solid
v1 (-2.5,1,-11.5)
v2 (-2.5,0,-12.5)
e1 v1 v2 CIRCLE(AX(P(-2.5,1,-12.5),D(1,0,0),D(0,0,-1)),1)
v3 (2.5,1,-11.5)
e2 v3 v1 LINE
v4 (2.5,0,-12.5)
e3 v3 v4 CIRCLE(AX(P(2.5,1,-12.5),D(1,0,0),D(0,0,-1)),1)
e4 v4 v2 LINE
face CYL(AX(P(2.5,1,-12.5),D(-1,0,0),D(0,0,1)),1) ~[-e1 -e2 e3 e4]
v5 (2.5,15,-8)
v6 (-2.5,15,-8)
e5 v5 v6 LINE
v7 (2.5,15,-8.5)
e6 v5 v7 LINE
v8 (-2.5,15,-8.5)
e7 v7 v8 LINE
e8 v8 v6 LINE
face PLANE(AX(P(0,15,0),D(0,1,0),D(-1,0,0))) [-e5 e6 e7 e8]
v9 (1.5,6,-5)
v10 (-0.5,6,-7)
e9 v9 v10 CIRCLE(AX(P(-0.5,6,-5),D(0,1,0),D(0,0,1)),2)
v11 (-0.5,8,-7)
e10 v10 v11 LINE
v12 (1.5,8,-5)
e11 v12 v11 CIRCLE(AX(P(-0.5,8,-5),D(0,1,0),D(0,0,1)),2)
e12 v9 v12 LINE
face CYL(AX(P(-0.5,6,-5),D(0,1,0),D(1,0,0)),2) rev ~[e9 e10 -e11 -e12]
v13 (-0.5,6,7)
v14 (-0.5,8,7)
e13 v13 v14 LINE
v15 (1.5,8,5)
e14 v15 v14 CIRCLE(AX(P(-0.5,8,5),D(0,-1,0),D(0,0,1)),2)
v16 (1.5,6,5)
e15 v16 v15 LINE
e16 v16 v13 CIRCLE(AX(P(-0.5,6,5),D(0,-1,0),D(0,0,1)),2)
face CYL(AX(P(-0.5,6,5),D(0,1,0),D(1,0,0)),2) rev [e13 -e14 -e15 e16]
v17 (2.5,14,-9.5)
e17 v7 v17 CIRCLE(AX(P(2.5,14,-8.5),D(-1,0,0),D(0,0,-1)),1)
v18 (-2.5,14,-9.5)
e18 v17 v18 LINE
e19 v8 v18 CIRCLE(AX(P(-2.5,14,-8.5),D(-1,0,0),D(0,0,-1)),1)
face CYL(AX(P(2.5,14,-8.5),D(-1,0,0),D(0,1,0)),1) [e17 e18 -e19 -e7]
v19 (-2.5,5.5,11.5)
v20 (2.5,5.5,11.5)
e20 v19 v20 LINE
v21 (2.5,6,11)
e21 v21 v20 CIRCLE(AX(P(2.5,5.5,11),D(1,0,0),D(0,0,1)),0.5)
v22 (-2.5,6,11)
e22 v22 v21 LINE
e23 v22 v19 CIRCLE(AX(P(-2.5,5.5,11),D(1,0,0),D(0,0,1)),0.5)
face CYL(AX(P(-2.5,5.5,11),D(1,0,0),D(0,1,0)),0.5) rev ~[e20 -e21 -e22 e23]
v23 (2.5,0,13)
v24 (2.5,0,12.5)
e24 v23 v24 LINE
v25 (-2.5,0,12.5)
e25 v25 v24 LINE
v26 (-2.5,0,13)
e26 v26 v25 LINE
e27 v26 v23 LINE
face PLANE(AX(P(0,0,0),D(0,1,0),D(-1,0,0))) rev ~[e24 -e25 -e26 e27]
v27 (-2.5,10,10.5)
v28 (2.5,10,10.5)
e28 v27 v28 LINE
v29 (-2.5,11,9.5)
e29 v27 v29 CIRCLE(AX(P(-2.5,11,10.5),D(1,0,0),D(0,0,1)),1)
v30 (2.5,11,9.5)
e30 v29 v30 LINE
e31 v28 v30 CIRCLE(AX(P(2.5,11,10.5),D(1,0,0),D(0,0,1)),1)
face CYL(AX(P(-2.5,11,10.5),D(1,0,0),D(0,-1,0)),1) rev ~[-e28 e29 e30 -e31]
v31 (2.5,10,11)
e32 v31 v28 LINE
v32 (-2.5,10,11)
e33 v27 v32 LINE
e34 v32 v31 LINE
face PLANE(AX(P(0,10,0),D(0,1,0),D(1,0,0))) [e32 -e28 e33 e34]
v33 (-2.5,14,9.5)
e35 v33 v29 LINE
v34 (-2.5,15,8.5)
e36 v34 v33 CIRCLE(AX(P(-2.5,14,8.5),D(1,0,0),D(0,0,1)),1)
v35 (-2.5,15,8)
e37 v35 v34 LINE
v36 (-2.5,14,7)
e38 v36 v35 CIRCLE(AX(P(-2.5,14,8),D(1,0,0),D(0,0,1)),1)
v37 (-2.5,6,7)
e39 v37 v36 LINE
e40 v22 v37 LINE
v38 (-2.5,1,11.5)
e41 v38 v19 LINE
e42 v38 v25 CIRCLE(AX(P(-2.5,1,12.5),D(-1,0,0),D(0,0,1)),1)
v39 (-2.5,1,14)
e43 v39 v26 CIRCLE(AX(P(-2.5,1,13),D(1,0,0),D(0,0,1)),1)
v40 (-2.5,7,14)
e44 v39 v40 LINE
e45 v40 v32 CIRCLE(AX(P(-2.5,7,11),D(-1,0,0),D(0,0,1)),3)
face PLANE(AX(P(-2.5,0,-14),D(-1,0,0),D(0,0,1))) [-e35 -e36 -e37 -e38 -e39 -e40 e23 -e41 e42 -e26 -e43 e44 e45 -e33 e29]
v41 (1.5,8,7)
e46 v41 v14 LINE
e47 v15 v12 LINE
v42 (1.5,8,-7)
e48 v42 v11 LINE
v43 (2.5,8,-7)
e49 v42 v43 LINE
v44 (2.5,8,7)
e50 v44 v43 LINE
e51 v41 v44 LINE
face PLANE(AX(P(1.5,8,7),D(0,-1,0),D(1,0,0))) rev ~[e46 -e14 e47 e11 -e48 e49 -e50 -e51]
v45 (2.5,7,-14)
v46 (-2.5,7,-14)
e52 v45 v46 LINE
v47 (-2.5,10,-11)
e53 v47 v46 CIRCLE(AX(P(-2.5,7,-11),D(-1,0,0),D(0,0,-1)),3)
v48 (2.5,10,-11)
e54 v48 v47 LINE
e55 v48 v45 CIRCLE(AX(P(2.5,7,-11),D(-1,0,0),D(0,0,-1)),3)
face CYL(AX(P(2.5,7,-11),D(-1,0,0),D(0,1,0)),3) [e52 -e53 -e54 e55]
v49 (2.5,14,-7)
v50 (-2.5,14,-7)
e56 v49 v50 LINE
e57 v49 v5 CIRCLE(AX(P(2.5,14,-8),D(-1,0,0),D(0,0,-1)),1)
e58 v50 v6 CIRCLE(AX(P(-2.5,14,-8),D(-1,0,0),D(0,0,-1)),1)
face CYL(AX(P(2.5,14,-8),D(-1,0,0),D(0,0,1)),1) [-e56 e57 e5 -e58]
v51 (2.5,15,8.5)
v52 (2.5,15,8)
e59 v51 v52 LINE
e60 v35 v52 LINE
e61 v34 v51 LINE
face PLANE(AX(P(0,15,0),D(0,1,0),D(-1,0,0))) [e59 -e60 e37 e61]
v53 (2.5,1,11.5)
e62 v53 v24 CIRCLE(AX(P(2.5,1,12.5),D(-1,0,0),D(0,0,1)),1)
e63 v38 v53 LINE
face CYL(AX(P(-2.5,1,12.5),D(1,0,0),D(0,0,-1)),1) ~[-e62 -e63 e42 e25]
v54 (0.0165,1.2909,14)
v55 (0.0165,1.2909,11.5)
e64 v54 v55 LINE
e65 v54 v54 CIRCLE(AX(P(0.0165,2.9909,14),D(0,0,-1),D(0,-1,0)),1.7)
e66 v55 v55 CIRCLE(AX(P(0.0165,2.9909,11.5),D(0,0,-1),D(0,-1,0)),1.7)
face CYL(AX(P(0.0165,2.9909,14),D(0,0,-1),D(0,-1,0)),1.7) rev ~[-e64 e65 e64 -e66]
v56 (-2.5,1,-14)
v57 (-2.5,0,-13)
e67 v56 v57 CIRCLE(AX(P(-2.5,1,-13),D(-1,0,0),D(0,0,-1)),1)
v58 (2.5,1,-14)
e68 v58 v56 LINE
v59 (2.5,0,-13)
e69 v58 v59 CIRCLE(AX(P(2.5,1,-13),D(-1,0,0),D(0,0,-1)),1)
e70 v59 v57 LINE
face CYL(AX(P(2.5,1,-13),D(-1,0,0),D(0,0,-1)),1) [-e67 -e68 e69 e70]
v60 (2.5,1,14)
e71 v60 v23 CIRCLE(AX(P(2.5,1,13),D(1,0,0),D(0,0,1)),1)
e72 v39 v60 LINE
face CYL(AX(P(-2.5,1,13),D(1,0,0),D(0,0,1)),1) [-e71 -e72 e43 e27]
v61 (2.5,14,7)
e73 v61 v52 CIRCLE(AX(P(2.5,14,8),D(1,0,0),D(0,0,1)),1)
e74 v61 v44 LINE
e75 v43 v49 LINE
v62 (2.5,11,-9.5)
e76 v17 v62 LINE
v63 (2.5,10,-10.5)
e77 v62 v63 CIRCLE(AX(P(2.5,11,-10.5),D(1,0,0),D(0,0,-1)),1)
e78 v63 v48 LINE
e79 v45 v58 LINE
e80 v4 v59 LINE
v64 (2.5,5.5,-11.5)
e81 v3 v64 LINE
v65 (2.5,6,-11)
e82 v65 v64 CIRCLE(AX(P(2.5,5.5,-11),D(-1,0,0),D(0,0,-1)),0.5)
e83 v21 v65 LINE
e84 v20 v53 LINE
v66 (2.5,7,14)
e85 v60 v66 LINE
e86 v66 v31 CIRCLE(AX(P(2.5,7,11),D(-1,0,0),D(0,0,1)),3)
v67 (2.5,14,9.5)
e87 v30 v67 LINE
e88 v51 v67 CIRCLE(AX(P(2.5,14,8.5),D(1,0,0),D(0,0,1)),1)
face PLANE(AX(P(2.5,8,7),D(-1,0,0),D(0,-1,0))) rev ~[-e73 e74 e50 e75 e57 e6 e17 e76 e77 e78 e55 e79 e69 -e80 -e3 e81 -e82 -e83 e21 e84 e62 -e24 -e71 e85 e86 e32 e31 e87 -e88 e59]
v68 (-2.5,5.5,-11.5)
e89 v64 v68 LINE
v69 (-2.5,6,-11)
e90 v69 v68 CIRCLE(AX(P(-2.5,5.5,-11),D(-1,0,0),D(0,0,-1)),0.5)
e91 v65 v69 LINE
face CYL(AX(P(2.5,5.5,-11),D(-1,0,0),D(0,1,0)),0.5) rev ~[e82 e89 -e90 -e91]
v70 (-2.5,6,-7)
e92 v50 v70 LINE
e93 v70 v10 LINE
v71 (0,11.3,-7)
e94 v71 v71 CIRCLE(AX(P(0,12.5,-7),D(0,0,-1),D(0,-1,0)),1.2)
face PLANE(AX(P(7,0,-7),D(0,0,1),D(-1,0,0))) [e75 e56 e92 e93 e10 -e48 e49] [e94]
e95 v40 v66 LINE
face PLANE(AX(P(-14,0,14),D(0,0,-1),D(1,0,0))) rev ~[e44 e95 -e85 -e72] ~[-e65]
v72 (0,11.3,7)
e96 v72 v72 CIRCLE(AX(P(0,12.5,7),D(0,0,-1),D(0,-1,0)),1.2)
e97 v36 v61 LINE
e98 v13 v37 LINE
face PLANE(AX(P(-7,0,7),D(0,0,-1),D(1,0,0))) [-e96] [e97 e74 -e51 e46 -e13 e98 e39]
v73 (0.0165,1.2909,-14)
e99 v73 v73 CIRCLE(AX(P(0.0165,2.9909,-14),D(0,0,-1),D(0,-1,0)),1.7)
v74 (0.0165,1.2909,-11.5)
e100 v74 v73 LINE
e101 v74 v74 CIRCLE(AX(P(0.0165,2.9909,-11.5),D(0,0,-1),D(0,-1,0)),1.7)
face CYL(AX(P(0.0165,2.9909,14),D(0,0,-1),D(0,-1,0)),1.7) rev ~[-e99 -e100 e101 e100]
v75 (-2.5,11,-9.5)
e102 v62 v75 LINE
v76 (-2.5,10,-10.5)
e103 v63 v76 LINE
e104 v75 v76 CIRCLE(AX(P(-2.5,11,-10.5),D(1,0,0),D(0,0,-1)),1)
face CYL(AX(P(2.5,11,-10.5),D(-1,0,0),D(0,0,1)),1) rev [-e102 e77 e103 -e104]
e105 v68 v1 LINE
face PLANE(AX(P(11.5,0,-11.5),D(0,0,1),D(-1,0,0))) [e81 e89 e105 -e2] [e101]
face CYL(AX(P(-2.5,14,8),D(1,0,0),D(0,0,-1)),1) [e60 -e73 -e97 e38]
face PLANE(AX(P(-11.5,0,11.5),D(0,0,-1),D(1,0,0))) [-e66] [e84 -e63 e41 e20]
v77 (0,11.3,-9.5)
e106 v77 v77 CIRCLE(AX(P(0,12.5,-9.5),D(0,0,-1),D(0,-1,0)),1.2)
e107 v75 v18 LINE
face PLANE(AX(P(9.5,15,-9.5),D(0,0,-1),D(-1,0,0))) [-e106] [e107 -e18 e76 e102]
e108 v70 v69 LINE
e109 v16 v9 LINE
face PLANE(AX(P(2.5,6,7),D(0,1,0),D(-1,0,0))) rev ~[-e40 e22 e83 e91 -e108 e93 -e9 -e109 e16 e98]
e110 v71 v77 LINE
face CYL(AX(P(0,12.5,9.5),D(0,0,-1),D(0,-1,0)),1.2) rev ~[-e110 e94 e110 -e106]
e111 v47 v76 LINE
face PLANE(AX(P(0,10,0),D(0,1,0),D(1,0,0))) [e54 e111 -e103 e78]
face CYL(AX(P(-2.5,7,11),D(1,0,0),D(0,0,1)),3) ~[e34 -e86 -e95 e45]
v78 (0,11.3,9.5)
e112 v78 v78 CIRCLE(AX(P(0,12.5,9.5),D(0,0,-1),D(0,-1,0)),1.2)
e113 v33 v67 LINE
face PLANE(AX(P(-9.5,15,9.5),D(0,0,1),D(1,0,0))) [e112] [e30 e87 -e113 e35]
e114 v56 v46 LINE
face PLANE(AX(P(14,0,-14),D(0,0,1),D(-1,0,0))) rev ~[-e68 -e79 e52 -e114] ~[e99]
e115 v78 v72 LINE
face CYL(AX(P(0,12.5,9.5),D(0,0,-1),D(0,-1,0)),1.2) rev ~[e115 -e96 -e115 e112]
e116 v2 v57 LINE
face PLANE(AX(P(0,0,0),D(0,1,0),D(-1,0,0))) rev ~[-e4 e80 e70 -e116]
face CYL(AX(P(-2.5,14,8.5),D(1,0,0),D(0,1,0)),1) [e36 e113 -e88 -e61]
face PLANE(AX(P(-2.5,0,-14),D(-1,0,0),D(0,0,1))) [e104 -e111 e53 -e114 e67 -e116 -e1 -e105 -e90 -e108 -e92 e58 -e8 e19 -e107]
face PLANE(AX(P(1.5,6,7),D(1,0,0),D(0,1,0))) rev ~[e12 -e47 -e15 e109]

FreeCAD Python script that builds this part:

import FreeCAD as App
import Part
import Sketcher


def edges_at(feature, points):
    """Names of the edges that pass closest to the given points."""
    edges = feature.Shape.Edges
    near = lambda p: min(range(len(edges)), key=lambda i: edges[i].distToShape(Part.Vertex(*p))[0])
    return sorted({f"Edge{near(p) + 1}" for p in points})


def add_polygon(sketch, points):
    """Adds a closed chain of lines whose ends are joined by coincident constraints."""
    first, n = sketch.GeometryCount, len(points)
    for a, b in zip(points, points[1:] + points[:1]):
        sketch.addGeometry(Part.LineSegment(App.Vector(*a, 0), App.Vector(*b, 0)), False)
    for i in range(n):
        sketch.addConstraint(Sketcher.Constraint("Coincident", first + i, 2, first + (i + 1) % n, 1))

doc = App.newDocument("Part")
body = doc.addObject("PartDesign::Body", "Body")
body.AllowCompound = True

sketch1 = body.newObject("Sketcher::SketchObject", "Sketch")
sketch1.AttachmentSupport = (doc.getObject("XZ_Plane"), [""])
sketch1.MapMode = "FlatFace"
add_polygon(sketch1, [(14, 14), (14, -14), (-14, -14), (-14, 14)])
add_polygon(sketch1, [(-7, -7), (7, -7), (7, 7), (-7, 7)])
sketch1.addConstraint(Sketcher.Constraint("Vertical", 0))
sketch1.addConstraint(Sketcher.Constraint("Horizontal", 1))
sketch1.addConstraint(Sketcher.Constraint("Vertical", 2))
sketch1.addConstraint(Sketcher.Constraint("Horizontal", 3))
sketch1.addConstraint(Sketcher.Constraint("Horizontal", 4))
sketch1.addConstraint(Sketcher.Constraint("Vertical", 5))
sketch1.addConstraint(Sketcher.Constraint("Horizontal", 6))
sketch1.addConstraint(Sketcher.Constraint("Vertical", 7))
sketch1.addConstraint(Sketcher.Constraint("Symmetric", 0, 2, 2, 2, -1, 1))
sketch1.addConstraint(Sketcher.Constraint("Symmetric", 4, 2, 6, 2, -1, 1))
sketch1.addConstraint(Sketcher.Constraint("Equal", 3, 0))
sketch1.addConstraint(Sketcher.Constraint("Equal", 6, 5))
sketch1.addConstraint(Sketcher.Constraint("DistanceX", 1, 2, 1, 1, 28.0))
sketch1.addConstraint(Sketcher.Constraint("DistanceX", 4, 1, 4, 2, 14.0))
pad1 = body.newObject("PartDesign::Pad", "Pad")
pad1.Profile = sketch1
pad1.Length = 15
pad1.Reversed = True

sketch2 = body.newObject("Sketcher::SketchObject", "Sketch001")
sketch2.AttachmentSupport = (doc.getObject("XZ_Plane"), [""])
sketch2.MapMode = "FlatFace"
sketch2.AttachmentOffset = App.Placement(App.Vector(0, 0, -15), App.Rotation())
add_polygon(sketch2, [(14, -14), (-14, -14), (-14, 14), (14, 14)])
add_polygon(sketch2, [(-9.5, -9.5), (9.5, -9.5), (9.5, 9.5), (-9.5, 9.5)])
sketch2.addConstraint(Sketcher.Constraint("Horizontal", 0))
sketch2.addConstraint(Sketcher.Constraint("Vertical", 1))
sketch2.addConstraint(Sketcher.Constraint("Horizontal", 2))
sketch2.addConstraint(Sketcher.Constraint("Vertical", 3))
sketch2.addConstraint(Sketcher.Constraint("Horizontal", 4))
sketch2.addConstraint(Sketcher.Constraint("Vertical", 5))
sketch2.addConstraint(Sketcher.Constraint("Horizontal", 6))
sketch2.addConstraint(Sketcher.Constraint("Vertical", 7))
sketch2.addConstraint(Sketcher.Constraint("Symmetric", 0, 2, 2, 2, -1, 1))
sketch2.addConstraint(Sketcher.Constraint("Symmetric", 4, 2, 6, 2, -1, 1))
sketch2.addConstraint(Sketcher.Constraint("Equal", 2, 1))
sketch2.addConstraint(Sketcher.Constraint("Equal", 6, 5))
sketch2.addConstraint(Sketcher.Constraint("DistanceX", 4, 1, 4, 2, 19.0))
sketch2.addConstraint(Sketcher.Constraint("DistanceX", 0, 2, 0, 1, 28.0))
pocket1 = body.newObject("PartDesign::Pocket", "Pocket")
pocket1.Profile = sketch2
pocket1.Length = 5
pocket1.Reversed = True

sketch3 = body.newObject("Sketcher::SketchObject", "Sketch002")
sketch3.AttachmentSupport = (doc.getObject("XY_Plane"), [""])
sketch3.MapMode = "FlatFace"
sketch3.AttachmentOffset = App.Placement(App.Vector(0, 0, 9.5), App.Rotation())
sketch3.addGeometry(Part.Circle(App.Vector(0, 12.5, 0), App.Vector(0, 0, 1), 1.2), False)
sketch3.addConstraint(Sketcher.Constraint("PointOnObject", 0, 3, -2))
sketch3.addConstraint(Sketcher.Constraint("Diameter", 0, 2.4))
sketch3.addConstraint(Sketcher.Constraint("DistanceY", -1, 1, 0, 3, 12.5))
doc.recompute()
hole = body.newObject("PartDesign::Hole", "Hole")
hole.Profile = sketch3
hole.ThreadType = "None"
hole.Diameter = 2.4
hole.DepthType = "ThroughAll"

sketch4 = body.newObject("Sketcher::SketchObject", "Sketch003")
sketch4.AttachmentSupport = (doc.getObject("XY_Plane"), [""])
sketch4.MapMode = "FlatFace"
sketch4.AttachmentOffset = App.Placement(App.Vector(0, 0, 14), App.Rotation())
sketch4.addGeometry(Part.Circle(App.Vector(0.0165, 2.9909, 0), App.Vector(0, 0, 1), 1.7), False)
sketch4.addConstraint(Sketcher.Constraint("Diameter", 0, 3.4))
sketch4.addConstraint(Sketcher.Constraint("DistanceY", -1, 1, 0, 3, 2.991))
sketch4.addConstraint(Sketcher.Constraint("DistanceX", -1, 1, 0, 3, 0.0165))
doc.recompute()
hole2 = body.newObject("PartDesign::Hole", "Hole001")
hole2.Profile = sketch4
hole2.ThreadType = "None"
hole2.Diameter = 3.4
hole2.DepthType = "ThroughAll"

sketch5 = body.newObject("Sketcher::SketchObject", "Sketch004")
sketch5.AttachmentSupport = (doc.getObject("XZ_Plane"), [""])
sketch5.MapMode = "FlatFace"
add_polygon(sketch5, [(-11.5, -11.5), (11.5, -11.5), (11.5, 11.5), (-11.5, 11.5)])
sketch5.addConstraint(Sketcher.Constraint("Horizontal", 0))
sketch5.addConstraint(Sketcher.Constraint("Vertical", 1))
sketch5.addConstraint(Sketcher.Constraint("Horizontal", 2))
sketch5.addConstraint(Sketcher.Constraint("Vertical", 3))
sketch5.addConstraint(Sketcher.Constraint("Symmetric", 0, 2, 2, 2, -1, 1))
sketch5.addConstraint(Sketcher.Constraint("Equal", 2, 1))
sketch5.addConstraint(Sketcher.Constraint("DistanceX", 0, 1, 0, 2, 23.0))
pocket2 = body.newObject("PartDesign::Pocket", "Pocket001")
pocket2.Profile = sketch5
pocket2.Length = 6

sketch6 = body.newObject("Sketcher::SketchObject", "Sketch005")
sketch6.AttachmentSupport = (doc.getObject("YZ_Plane"), [""])
sketch6.MapMode = "FlatFace"
sketch6.AttachmentOffset = App.Placement(App.Vector(0, 0, -14), App.Rotation())
add_polygon(sketch6, [(0, -14), (0, 14), (15.2302, 14), (15.2302, -14)])
sketch6.addConstraint(Sketcher.Constraint("Vertical", 0))
sketch6.addConstraint(Sketcher.Constraint("Horizontal", 1))
sketch6.addConstraint(Sketcher.Constraint("Vertical", 2))
sketch6.addConstraint(Sketcher.Constraint("Horizontal", 3))
sketch6.addConstraint(Sketcher.Constraint("Symmetric", 0, 2, 3, 2, -1, 1))
sketch6.addConstraint(Sketcher.Constraint("DistanceY", 0, 1, 0, 2, 28.0))
sketch6.addConstraint(Sketcher.Constraint("DistanceX", 1, 1, 1, 2, 15.2302))
pocket3 = body.newObject("PartDesign::Pocket", "Pocket002")
pocket3.Profile = sketch6
pocket3.Length = 11.5
pocket3.Reversed = True

sketch7 = body.newObject("Sketcher::SketchObject", "Sketch006")
sketch7.AttachmentSupport = (doc.getObject("YZ_Plane"), [""])
sketch7.MapMode = "FlatFace"
sketch7.AttachmentOffset = App.Placement(App.Vector(0, 0, 14), App.Rotation())
add_polygon(sketch7, [(16.0654, 14), (0, 14), (0, -14), (16.0654, -14)])
sketch7.addConstraint(Sketcher.Constraint("Horizontal", 0))
sketch7.addConstraint(Sketcher.Constraint("Vertical", 1))
sketch7.addConstraint(Sketcher.Constraint("Horizontal", 2))
sketch7.addConstraint(Sketcher.Constraint("Vertical", 3))
sketch7.addConstraint(Sketcher.Constraint("Symmetric", 0, 2, 1, 2, -1, 1))
sketch7.addConstraint(Sketcher.Constraint("DistanceY", 1, 2, 1, 1, 28.0))
sketch7.addConstraint(Sketcher.Constraint("DistanceX", 0, 2, 0, 1, 16.0654))
pocket4 = body.newObject("PartDesign::Pocket", "Pocket003")
pocket4.Profile = sketch7
pocket4.Length = 11.5

sketch8 = body.newObject("Sketcher::SketchObject", "Sketch007")
sketch8.AttachmentSupport = (doc.getObject("XY_Plane"), [""])
sketch8.MapMode = "FlatFace"
sketch8.AttachmentOffset = App.Placement(App.Vector(0, 0, 7), App.Rotation())
add_polygon(sketch8, [(1.5, 8), (2.5, 8), (2.5, 6), (1.5, 6)])
sketch8.addConstraint(Sketcher.Constraint("Horizontal", 0))
sketch8.addConstraint(Sketcher.Constraint("Vertical", 1))
sketch8.addConstraint(Sketcher.Constraint("Horizontal", 2))
sketch8.addConstraint(Sketcher.Constraint("Vertical", 3))
sketch8.addConstraint(Sketcher.Constraint("DistanceX", 0, 1, 0, 2, 1.0))
sketch8.addConstraint(Sketcher.Constraint("DistanceY", 1, 2, 1, 1, 2.0))
sketch8.addConstraint(Sketcher.Constraint("DistanceY", -1, 1, 0, 2, 8.0))
sketch8.addConstraint(Sketcher.Constraint("DistanceX", -1, 1, 0, 2, 2.5))
pad2 = body.newObject("PartDesign::Pad", "Pad001")
pad2.Profile = sketch8
pad2.Length = 14
pad2.Reversed = True
doc.recompute()

fillet = body.newObject("PartDesign::Fillet", "Fillet")
fillet.Base = (pad2, edges_at(pad2, [(1.5, 7, 7), (1.5, 7, -7)]))
fillet.Radius = 2
doc.recompute()

fillet2 = body.newObject("PartDesign::Fillet", "Fillet001")
fillet2.Base = (fillet, edges_at(fillet, [
    (0, 15, 9.5),
    (0, 15, 7),
    (0, 15, -9.5),
    (0, 15, -7),
    (0, 10, -9.5),
    (0, 10, 9.5),
    (0, 0, 11.5),
    (0, 0, 14),
    (0, 0, -14),
    (0, 0, -11.5),
]))
fillet2.Radius = 1
doc.recompute()

fillet3 = body.newObject("PartDesign::Fillet", "Fillet002")
fillet3.Base = (fillet2, edges_at(fillet2, [(0, 6, 11.5), (0, 6, -11.5)]))
fillet3.Radius = 0.5
doc.recompute()

fillet4 = body.newObject("PartDesign::Fillet", "Fillet003")
fillet4.Base = (fillet3, edges_at(fillet3, [(0, 10, -14), (0, 10, 14)]))
fillet4.Radius = 3

doc.recompute()
